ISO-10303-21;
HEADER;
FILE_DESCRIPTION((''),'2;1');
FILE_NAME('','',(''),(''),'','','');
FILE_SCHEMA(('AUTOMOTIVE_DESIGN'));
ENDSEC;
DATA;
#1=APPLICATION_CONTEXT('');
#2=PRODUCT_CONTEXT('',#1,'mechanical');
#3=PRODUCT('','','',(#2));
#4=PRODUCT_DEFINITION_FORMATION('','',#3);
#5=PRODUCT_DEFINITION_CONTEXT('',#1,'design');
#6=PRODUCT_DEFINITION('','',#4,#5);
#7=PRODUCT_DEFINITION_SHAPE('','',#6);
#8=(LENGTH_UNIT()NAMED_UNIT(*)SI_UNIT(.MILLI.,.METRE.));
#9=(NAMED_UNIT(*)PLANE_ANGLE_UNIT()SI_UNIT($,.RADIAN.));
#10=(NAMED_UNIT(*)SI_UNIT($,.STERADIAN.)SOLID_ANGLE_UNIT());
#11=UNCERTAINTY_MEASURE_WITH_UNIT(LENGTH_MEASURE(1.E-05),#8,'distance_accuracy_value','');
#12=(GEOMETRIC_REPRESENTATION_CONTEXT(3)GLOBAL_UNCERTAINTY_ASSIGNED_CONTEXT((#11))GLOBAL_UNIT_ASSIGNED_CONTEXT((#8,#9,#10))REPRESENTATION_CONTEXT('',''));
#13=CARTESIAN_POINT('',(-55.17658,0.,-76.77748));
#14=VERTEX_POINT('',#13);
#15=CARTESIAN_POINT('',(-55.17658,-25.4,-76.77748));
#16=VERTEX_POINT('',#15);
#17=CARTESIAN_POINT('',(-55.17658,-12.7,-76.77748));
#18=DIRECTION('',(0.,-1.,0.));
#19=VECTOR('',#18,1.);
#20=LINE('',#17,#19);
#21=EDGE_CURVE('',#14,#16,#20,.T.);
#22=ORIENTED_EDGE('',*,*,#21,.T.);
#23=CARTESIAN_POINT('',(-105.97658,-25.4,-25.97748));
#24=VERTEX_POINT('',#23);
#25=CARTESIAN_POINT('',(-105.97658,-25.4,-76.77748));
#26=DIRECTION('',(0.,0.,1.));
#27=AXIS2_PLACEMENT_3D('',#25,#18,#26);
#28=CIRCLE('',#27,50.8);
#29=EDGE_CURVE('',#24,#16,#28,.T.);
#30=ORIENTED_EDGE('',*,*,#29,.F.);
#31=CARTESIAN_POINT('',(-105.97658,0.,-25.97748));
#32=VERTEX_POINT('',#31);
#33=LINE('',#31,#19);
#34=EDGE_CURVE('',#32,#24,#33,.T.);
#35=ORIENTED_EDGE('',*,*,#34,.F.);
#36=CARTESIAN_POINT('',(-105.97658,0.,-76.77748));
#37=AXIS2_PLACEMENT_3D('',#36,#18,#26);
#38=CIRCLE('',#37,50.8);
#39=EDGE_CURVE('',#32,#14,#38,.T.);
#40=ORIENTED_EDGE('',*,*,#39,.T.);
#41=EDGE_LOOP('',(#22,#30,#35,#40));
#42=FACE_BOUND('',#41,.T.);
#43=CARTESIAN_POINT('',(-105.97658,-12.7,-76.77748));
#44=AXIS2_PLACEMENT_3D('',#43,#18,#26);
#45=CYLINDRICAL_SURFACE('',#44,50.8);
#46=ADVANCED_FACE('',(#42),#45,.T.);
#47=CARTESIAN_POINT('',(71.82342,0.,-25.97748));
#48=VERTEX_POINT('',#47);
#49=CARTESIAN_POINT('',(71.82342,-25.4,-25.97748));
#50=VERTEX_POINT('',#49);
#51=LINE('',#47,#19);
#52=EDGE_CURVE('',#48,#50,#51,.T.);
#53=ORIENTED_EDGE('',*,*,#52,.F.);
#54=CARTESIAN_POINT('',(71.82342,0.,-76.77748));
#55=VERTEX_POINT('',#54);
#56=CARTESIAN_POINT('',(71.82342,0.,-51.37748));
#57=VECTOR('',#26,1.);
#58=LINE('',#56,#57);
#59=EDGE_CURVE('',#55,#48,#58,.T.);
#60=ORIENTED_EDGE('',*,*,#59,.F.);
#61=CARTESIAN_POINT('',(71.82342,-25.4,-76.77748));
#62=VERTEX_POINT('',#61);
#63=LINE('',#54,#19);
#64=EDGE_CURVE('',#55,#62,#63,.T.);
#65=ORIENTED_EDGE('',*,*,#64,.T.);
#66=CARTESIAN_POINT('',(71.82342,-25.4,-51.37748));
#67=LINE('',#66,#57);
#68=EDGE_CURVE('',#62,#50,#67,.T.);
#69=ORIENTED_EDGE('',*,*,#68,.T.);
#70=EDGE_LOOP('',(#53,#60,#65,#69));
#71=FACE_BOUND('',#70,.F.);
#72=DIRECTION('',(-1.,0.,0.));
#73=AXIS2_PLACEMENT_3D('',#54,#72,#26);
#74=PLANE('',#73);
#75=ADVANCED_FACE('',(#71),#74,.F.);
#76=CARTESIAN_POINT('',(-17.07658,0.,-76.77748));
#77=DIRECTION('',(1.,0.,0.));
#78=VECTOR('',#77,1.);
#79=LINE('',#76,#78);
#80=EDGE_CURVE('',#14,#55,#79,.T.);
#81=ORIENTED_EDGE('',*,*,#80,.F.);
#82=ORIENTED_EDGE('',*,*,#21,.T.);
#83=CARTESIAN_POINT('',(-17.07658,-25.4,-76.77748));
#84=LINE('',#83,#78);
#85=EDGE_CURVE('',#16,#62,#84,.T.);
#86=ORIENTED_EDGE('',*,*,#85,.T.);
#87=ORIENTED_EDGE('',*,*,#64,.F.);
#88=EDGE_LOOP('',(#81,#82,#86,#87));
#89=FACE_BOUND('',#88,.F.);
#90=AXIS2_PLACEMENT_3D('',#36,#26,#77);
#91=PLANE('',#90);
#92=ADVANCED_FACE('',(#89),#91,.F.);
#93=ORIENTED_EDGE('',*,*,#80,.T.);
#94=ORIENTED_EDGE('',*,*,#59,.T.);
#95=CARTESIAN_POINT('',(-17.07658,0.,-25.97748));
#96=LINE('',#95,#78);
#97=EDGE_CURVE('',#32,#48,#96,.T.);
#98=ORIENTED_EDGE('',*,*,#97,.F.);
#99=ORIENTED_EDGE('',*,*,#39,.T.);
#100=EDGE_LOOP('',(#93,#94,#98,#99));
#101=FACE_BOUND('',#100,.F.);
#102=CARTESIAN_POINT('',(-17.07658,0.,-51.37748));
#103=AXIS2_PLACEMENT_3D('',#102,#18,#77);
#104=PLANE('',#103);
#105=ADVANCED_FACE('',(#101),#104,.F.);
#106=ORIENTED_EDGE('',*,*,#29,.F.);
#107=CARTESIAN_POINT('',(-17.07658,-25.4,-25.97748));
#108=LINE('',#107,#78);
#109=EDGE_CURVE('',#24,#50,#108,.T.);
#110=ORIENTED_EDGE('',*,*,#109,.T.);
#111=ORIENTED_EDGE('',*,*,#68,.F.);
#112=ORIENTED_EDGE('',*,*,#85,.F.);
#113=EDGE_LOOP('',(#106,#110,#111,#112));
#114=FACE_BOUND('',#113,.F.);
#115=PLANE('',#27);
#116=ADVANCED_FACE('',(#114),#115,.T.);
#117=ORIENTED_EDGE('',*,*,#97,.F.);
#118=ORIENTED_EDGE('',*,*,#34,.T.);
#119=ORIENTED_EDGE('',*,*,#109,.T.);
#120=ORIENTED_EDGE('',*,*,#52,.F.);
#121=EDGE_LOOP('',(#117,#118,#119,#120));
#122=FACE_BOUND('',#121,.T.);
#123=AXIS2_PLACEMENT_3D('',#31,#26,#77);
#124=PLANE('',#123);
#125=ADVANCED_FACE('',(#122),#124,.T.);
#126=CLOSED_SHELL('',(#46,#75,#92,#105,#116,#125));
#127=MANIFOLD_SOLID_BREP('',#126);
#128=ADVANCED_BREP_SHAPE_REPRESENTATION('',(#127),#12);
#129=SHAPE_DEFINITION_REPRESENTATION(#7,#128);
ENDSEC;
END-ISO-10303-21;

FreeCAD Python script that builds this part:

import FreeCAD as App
import Part
import Sketcher
from FreeCAD import Vector
Q = App.Units.Quantity

doc = App.newDocument("Part")
body = doc.addObject("PartDesign::Body", "Body")

sketch1 = body.newObject("Sketcher::SketchObject", "Sketch")
sketch1.AttachmentSupport = (doc.getObject("XZ_Plane"), [""])
sketch1.MapMode = "FlatFace"
sketch1.addGeometry([
    Part.LineSegment(Vector(-106, -26, 0), Vector(-106, -77, 0)),
    Part.LineSegment(Vector(-106, -77, 0), Vector(72, -77, 0)),
    Part.LineSegment(Vector(72, -77, 0), Vector(72, -26, 0)),
    Part.LineSegment(Vector(72, -26, 0), Vector(-106, -26, 0)),
], False)
sketch1.addConstraint([
    Sketcher.Constraint("Coincident", 0, 2, 1, 1),
    Sketcher.Constraint("Coincident", 1, 2, 2, 1),
    Sketcher.Constraint("Coincident", 2, 2, 3, 1),
    Sketcher.Constraint("Coincident", 3, 2, 0, 1),
    Sketcher.Constraint("Vertical", 0),
    Sketcher.Constraint("Horizontal", 1),
    Sketcher.Constraint("Vertical", 2),
    Sketcher.Constraint("Horizontal", 3),
    Sketcher.Constraint("DistanceX", 1, 1, 1, 2, Q("7 in")),
    Sketcher.Constraint("DistanceY", 0, 2, 0, 1, Q("2 in")),
    Sketcher.Constraint("DistanceX", 0, 2, -1, 1, Q("105.97658 mm")),
    Sketcher.Constraint("DistanceY", 0, 2, -1, 1, Q("76.77748 mm")),
])
pad1 = body.newObject("PartDesign::Pad", "Pad")
pad1.Profile = sketch1
pad1.Length = Q("1 in")

sketch2 = body.newObject("Sketcher::SketchObject", "Sketch001")
sketch2.AttachmentSupport = (doc.getObject("YZ_Plane"), [""])
sketch2.MapMode = "FlatFace"
sketch2.AttachmentOffset = App.Placement(Vector(0, 0, -105.97658), App.Rotation())
sketch2.addGeometry([
    Part.LineSegment(Vector(0, -26, 0), Vector(0, -77, 0)),
    Part.LineSegment(Vector(0, -77, 0), Vector(-25, -77, 0)),
    Part.LineSegment(Vector(-25, -77, 0), Vector(-25, -26, 0)),
    Part.LineSegment(Vector(-25, -26, 0), Vector(0, -26, 0)),
], False)
sketch2.addGeometry(Part.LineSegment(Vector(0, -77, 0), Vector(-25, -77, 0)), True)
sketch2.addConstraint([
    Sketcher.Constraint("Coincident", 0, 2, 1, 1),
    Sketcher.Constraint("Coincident", 1, 2, 2, 1),
    Sketcher.Constraint("Coincident", 2, 2, 3, 1),
    Sketcher.Constraint("Coincident", 3, 2, 0, 1),
    Sketcher.Constraint("Vertical", 0),
    Sketcher.Constraint("Horizontal", 1),
    Sketcher.Constraint("Vertical", 2),
    Sketcher.Constraint("Horizontal", 3),
    Sketcher.Constraint("Horizontal", 4),
    Sketcher.Constraint("Coincident", 4, 1, 0, 2),
    Sketcher.Constraint("PointOnObject", 0, 2, -2),
    Sketcher.Constraint("Vertical", 2, 2, 4, 2),
    Sketcher.Constraint("DistanceX", 1, 2, 1, 1, Q("1 in")),
    Sketcher.Constraint("DistanceY", 0, 2, 0, 1, Q("2 in")),
    Sketcher.Constraint("DistanceY", 0, 2, -1, 1, Q("76.77748 mm")),
])
revolution = body.newObject("PartDesign::Revolution", "Revolution")
revolution.Profile = sketch2
revolution.ReferenceAxis = (sketch2, ["Axis0"])
revolution.Angle = 360

doc.recompute()
